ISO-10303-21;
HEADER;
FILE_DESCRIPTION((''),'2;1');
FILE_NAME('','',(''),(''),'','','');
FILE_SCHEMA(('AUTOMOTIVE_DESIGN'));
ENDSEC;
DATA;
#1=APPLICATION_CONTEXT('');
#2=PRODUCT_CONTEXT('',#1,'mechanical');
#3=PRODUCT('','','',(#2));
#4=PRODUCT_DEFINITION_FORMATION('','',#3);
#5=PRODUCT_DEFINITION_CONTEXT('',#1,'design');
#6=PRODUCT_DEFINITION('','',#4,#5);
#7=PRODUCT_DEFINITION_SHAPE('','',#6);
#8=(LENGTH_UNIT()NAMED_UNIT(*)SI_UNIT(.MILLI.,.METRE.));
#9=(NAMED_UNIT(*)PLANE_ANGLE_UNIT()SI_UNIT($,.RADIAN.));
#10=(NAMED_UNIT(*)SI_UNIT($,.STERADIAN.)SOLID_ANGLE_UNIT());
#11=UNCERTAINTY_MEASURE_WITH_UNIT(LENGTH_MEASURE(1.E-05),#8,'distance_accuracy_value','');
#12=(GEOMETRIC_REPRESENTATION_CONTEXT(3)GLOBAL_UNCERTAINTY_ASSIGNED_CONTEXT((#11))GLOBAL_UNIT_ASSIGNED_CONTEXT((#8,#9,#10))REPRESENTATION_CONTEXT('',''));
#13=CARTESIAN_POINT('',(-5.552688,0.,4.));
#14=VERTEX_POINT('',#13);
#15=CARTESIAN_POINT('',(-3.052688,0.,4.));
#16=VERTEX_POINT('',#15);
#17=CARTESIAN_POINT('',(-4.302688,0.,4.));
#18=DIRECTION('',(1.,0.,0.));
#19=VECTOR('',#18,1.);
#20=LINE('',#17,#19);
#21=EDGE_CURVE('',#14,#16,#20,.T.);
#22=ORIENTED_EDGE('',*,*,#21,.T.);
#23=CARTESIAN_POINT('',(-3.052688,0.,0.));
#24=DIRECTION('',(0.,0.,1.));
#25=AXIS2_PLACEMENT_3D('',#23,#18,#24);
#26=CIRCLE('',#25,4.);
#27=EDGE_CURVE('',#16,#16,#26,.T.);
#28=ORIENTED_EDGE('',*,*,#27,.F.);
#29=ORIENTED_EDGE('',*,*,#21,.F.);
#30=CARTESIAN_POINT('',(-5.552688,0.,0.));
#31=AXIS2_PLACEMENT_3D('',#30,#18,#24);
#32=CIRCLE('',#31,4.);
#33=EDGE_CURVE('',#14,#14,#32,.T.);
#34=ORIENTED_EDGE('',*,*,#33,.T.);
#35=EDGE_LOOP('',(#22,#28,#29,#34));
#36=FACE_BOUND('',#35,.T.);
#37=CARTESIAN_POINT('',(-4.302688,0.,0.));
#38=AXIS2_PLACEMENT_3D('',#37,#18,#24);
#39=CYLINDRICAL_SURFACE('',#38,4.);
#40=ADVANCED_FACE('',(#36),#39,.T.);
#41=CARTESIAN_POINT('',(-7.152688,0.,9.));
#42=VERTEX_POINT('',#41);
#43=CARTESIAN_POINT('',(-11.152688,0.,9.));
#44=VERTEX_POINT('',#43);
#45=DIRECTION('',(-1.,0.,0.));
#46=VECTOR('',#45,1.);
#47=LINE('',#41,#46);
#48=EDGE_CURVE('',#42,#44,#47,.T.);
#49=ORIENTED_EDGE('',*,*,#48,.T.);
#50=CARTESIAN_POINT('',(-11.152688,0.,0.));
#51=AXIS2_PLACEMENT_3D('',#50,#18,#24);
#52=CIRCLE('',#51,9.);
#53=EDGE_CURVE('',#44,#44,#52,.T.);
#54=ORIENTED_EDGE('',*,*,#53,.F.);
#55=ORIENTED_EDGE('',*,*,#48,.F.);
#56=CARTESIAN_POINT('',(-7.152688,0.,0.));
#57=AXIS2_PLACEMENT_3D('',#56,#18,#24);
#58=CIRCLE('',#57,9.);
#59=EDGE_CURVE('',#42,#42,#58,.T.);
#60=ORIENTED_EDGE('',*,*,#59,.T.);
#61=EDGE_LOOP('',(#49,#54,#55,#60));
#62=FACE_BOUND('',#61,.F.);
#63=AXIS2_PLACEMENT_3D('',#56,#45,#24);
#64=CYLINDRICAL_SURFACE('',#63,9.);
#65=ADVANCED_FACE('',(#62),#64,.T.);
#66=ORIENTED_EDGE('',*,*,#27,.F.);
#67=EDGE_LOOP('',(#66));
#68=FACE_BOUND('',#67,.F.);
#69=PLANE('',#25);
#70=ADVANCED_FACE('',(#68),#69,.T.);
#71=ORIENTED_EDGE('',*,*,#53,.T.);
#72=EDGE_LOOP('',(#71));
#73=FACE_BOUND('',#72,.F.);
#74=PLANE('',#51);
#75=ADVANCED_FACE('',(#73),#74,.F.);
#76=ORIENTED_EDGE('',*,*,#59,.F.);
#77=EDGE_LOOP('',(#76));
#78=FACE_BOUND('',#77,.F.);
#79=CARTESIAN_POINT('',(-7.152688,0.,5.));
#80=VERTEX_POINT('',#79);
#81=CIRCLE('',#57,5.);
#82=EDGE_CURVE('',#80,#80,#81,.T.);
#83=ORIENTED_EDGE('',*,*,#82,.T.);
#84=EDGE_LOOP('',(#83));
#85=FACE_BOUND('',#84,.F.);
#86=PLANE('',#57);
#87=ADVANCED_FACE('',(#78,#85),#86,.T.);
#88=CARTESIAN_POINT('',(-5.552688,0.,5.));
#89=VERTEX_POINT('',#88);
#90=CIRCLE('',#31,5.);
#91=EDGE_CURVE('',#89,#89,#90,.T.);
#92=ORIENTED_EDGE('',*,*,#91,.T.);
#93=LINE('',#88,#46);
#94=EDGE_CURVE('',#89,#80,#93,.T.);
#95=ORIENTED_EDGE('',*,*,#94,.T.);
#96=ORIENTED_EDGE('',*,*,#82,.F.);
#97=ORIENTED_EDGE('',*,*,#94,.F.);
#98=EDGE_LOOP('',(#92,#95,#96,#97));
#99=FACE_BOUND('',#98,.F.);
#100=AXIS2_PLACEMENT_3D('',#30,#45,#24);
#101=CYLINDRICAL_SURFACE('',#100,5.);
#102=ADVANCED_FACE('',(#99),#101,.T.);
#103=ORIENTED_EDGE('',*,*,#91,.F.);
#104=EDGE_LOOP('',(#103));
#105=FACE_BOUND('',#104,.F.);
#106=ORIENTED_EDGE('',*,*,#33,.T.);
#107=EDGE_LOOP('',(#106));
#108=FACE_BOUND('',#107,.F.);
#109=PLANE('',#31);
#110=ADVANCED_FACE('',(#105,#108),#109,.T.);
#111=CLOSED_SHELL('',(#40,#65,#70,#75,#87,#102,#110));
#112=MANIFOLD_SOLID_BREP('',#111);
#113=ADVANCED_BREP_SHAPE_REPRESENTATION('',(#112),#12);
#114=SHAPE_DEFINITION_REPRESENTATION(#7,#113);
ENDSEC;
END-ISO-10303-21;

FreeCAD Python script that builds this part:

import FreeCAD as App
import Part
import Sketcher


def add_polygon(sketch, points):
    """Adds a closed chain of lines whose ends are joined by coincident constraints."""
    first, n = sketch.GeometryCount, len(points)
    for a, b in zip(points, points[1:] + points[:1]):
        sketch.addGeometry(Part.LineSegment(App.Vector(*a, 0), App.Vector(*b, 0)), False)
    for i in range(n):
        sketch.addConstraint(Sketcher.Constraint("Coincident", first + i, 2, first + (i + 1) % n, 1))

doc = App.newDocument("Part")
body = doc.addObject("PartDesign::Body", "Body")

# Sketch on XZ plane
sketch1 = body.newObject("Sketcher::SketchObject", "Sketch")
sketch1.AttachmentSupport = (doc.getObject("XZ_Plane"), [""])
sketch1.MapMode = "FlatFace"
add_polygon(sketch1, [(-5.6, 4), (-5.6, 5), (-7.2, 5), (-7.2, 9), (-11.2, 9), (-11.2, 0), (-3.1, 0), (-3.1, 4)])  # lines 0-7
sketch1.addConstraint([
    Sketcher.Constraint("Vertical", 0),
    Sketcher.Constraint("Horizontal", 1),
    Sketcher.Constraint("Vertical", 2),
    Sketcher.Constraint("Horizontal", 3),
    Sketcher.Constraint("Vertical", 4),
    Sketcher.Constraint("Horizontal", 5),
    Sketcher.Constraint("Vertical", 6),
    Sketcher.Constraint("Horizontal", 7),
    Sketcher.Constraint("PointOnObject", 4, 2, -1),
    Sketcher.Constraint("Equal", 3, 2),
    Sketcher.Constraint("Equal", 2, 6),
    Sketcher.Constraint("DistanceX", 3, 2, 3, 1, 4.0),
    Sketcher.Constraint("DistanceY", 0, 1, 0, 2, 1.0),
    Sketcher.Constraint("DistanceX", 1, 2, 1, 1, 1.6),
    Sketcher.Constraint("DistanceX", 5, 1, 5, 2, 8.1),
    Sketcher.Constraint("DistanceX", 1, 2, -1, 1, 7.152688),
])
revolution = body.newObject("PartDesign::Revolution", "Revolution")
revolution.Profile = sketch1
revolution.ReferenceAxis = (sketch1, ["H_Axis"])
revolution.Angle = 360

doc.recompute()
